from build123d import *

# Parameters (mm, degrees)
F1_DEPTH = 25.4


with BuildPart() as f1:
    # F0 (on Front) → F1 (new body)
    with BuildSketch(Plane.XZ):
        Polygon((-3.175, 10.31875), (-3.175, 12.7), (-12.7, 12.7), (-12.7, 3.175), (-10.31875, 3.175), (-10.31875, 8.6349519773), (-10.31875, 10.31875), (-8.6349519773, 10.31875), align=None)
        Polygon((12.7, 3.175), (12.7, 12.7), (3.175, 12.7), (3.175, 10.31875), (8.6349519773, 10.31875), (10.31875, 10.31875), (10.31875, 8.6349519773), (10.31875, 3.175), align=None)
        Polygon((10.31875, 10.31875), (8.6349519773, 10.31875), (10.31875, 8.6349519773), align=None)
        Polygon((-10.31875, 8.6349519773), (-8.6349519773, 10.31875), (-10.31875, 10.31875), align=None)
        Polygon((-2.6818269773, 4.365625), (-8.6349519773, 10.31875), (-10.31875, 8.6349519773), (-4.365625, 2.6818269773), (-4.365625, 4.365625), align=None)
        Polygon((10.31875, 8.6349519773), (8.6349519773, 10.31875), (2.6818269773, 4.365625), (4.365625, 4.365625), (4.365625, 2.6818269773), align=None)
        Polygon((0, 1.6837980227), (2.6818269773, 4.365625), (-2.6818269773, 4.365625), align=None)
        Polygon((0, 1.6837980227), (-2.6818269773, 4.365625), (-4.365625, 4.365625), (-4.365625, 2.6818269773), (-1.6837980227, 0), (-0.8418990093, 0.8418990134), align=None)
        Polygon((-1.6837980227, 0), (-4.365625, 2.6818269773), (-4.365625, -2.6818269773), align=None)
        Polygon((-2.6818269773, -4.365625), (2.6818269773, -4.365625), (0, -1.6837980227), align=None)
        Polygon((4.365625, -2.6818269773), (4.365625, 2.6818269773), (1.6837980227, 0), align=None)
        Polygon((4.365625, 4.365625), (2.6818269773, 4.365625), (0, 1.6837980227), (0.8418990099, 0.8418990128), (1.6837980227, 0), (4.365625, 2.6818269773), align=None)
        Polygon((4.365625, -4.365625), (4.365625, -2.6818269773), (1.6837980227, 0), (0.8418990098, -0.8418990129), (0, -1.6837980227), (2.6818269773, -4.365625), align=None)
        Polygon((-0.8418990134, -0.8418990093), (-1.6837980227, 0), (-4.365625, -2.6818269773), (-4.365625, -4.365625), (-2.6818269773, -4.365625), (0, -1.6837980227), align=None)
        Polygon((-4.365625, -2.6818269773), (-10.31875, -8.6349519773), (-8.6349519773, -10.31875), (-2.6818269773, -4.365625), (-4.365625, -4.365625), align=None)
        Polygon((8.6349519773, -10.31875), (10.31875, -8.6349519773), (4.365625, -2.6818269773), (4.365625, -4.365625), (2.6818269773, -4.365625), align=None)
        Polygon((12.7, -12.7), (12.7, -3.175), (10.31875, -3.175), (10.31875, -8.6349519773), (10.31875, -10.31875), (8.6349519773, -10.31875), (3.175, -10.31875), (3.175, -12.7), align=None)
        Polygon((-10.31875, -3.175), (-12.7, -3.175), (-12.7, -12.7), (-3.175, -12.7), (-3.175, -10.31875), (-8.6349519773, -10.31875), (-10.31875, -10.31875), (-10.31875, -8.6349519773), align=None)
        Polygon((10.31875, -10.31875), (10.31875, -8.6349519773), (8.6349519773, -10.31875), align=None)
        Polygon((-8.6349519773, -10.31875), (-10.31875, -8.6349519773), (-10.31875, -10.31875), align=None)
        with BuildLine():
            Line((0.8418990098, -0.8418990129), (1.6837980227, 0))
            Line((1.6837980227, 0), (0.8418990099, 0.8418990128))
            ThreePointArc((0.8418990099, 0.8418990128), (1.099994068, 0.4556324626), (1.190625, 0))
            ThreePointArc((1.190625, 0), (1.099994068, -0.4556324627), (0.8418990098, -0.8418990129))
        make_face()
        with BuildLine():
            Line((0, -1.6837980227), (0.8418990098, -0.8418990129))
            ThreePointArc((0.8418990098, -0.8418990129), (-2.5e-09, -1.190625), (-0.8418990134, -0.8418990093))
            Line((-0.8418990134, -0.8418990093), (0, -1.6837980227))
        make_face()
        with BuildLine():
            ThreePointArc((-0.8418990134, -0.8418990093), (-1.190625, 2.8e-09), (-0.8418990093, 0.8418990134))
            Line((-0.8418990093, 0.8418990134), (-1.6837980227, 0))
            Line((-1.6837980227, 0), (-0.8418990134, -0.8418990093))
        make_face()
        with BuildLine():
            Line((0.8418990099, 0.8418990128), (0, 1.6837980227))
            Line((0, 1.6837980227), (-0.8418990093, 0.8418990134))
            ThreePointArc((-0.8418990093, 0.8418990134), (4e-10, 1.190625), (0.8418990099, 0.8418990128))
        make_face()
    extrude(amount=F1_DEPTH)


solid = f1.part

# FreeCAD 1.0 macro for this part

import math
import FreeCAD as App
import Part
import Sketcher
Q = App.Units.Quantity

doc = App.newDocument("Part")
body = doc.addObject("PartDesign::Body", "Body")

# Sketch on XZ plane
sketch1 = body.newObject("Sketcher::SketchObject", "Sketch")
sketch1.AttachmentSupport = (doc.getObject("XZ_Plane"), [""])
sketch1.MapMode = "FlatFace"
sketch1.addGeometry(Part.LineSegment(App.Vector(-3.2, 10.3, 0), App.Vector(-3.2, 12.7, 0)), False)
sketch1.addGeometry(Part.LineSegment(App.Vector(-3.2, 12.7, 0), App.Vector(-12.7, 12.7, 0)), False)
sketch1.addGeometry(Part.LineSegment(App.Vector(-12.7, 12.7, 0), App.Vector(-12.7, 3.2, 0)), False)
sketch1.addGeometry(Part.LineSegment(App.Vector(-12.7, 3.2, 0), App.Vector(-10.3, 3.2, 0)), False)
sketch1.addGeometry(Part.LineSegment(App.Vector(-10.3, 3.2, 0), App.Vector(-10.3, 8.6, 0)), False)
sketch1.addGeometry(Part.LineSegment(App.Vector(-10.3, 8.6, 0), App.Vector(-4.4, 2.7, 0)), False)
sketch1.addGeometry(Part.LineSegment(App.Vector(-4.4, 2.7, 0), App.Vector(-4.4, -2.7, 0)), False)
sketch1.addGeometry(Part.LineSegment(App.Vector(-4.4, -2.7, 0), App.Vector(-10.3, -8.6, 0)), False)
sketch1.addGeometry(Part.LineSegment(App.Vector(-10.3, -8.6, 0), App.Vector(-10.3, -3.2, 0)), False)
sketch1.addGeometry(Part.LineSegment(App.Vector(-10.3, -3.2, 0), App.Vector(-12.7, -3.2, 0)), False)
sketch1.addGeometry(Part.LineSegment(App.Vector(-12.7, -3.2, 0), App.Vector(-12.7, -12.7, 0)), False)
sketch1.addGeometry(Part.LineSegment(App.Vector(-12.7, -12.7, 0), App.Vector(-3.2, -12.7, 0)), False)
sketch1.addGeometry(Part.LineSegment(App.Vector(-3.2, -12.7, 0), App.Vector(-3.2, -10.3, 0)), False)
sketch1.addGeometry(Part.LineSegment(App.Vector(-3.2, -10.3, 0), App.Vector(-8.6, -10.3, 0)), False)
sketch1.addGeometry(Part.LineSegment(App.Vector(-8.6, -10.3, 0), App.Vector(-2.7, -4.4, 0)), False)
sketch1.addGeometry(Part.LineSegment(App.Vector(-2.7, -4.4, 0), App.Vector(2.7, -4.4, 0)), False)
sketch1.addGeometry(Part.LineSegment(App.Vector(2.7, -4.4, 0), App.Vector(8.6, -10.3, 0)), False)
sketch1.addGeometry(Part.LineSegment(App.Vector(8.6, -10.3, 0), App.Vector(3.2, -10.3, 0)), False)
sketch1.addGeometry(Part.LineSegment(App.Vector(3.2, -10.3, 0), App.Vector(3.2, -12.7, 0)), False)
sketch1.addGeometry(Part.LineSegment(App.Vector(3.2, -12.7, 0), App.Vector(12.7, -12.7, 0)), False)
sketch1.addGeometry(Part.LineSegment(App.Vector(12.7, -12.7, 0), App.Vector(12.7, -3.2, 0)), False)
sketch1.addGeometry(Part.LineSegment(App.Vector(12.7, -3.2, 0), App.Vector(10.3, -3.2, 0)), False)
sketch1.addGeometry(Part.LineSegment(App.Vector(10.3, -3.2, 0), App.Vector(10.3, -8.6, 0)), False)
sketch1.addGeometry(Part.LineSegment(App.Vector(10.3, -8.6, 0), App.Vector(4.4, -2.7, 0)), False)
sketch1.addGeometry(Part.LineSegment(App.Vector(4.4, -2.7, 0), App.Vector(4.4, 2.7, 0)), False)
sketch1.addGeometry(Part.LineSegment(App.Vector(4.4, 2.7, 0), App.Vector(10.3, 8.6, 0)), False)
sketch1.addGeometry(Part.LineSegment(App.Vector(10.3, 8.6, 0), App.Vector(10.3, 3.2, 0)), False)
sketch1.addGeometry(Part.LineSegment(App.Vector(10.3, 3.2, 0), App.Vector(12.7, 3.2, 0)), False)
sketch1.addGeometry(Part.LineSegment(App.Vector(12.7, 3.2, 0), App.Vector(12.7, 12.7, 0)), False)
sketch1.addGeometry(Part.LineSegment(App.Vector(12.7, 12.7, 0), App.Vector(3.2, 12.7, 0)), False)
sketch1.addGeometry(Part.LineSegment(App.Vector(3.2, 12.7, 0), App.Vector(3.2, 10.3, 0)), False)
sketch1.addGeometry(Part.LineSegment(App.Vector(3.2, 10.3, 0), App.Vector(8.6, 10.3, 0)), False)
sketch1.addGeometry(Part.LineSegment(App.Vector(8.6, 10.3, 0), App.Vector(2.7, 4.4, 0)), False)
sketch1.addGeometry(Part.LineSegment(App.Vector(2.7, 4.4, 0), App.Vector(-2.7, 4.4, 0)), False)
sketch1.addGeometry(Part.LineSegment(App.Vector(-2.7, 4.4, 0), App.Vector(-8.6, 10.3, 0)), False)
sketch1.addGeometry(Part.LineSegment(App.Vector(-8.6, 10.3, 0), App.Vector(-3.2, 10.3, 0)), False)
sketch1.addGeometry(Part.ArcOfCircle(Part.Circle(App.Vector(0, 0, 0), App.Vector(0, 0, 1), 1.2), math.radians(0), math.radians(45)), False)
sketch1.addGeometry(Part.ArcOfCircle(Part.Circle(App.Vector(0, 0, 0), App.Vector(0, 0, 1), 1.2), math.radians(-45), math.radians(0)), False)
sketch1.addGeometry(Part.ArcOfCircle(Part.Circle(App.Vector(0, 0, 0), App.Vector(0, 0, 1), 1.2), math.radians(-135), math.radians(-45)), False)
sketch1.addGeometry(Part.ArcOfCircle(Part.Circle(App.Vector(0, 0, 0), App.Vector(0, 0, 1), 1.2), math.radians(135), math.radians(225)), False)
sketch1.addGeometry(Part.ArcOfCircle(Part.Circle(App.Vector(0, 0, 0), App.Vector(0, 0, 1), 1.2), math.radians(45), math.radians(135)), False)
sketch1.addConstraint(Sketcher.Constraint("Coincident", 0, 2, 1, 1))
sketch1.addConstraint(Sketcher.Constraint("Coincident", 1, 2, 2, 1))
sketch1.addConstraint(Sketcher.Constraint("Coincident", 2, 2, 3, 1))
sketch1.addConstraint(Sketcher.Constraint("Coincident", 3, 2, 4, 1))
sketch1.addConstraint(Sketcher.Constraint("Coincident", 4, 2, 5, 1))
sketch1.addConstraint(Sketcher.Constraint("Coincident", 5, 2, 6, 1))
sketch1.addConstraint(Sketcher.Constraint("Coincident", 6, 2, 7, 1))
sketch1.addConstraint(Sketcher.Constraint("Coincident", 7, 2, 8, 1))
sketch1.addConstraint(Sketcher.Constraint("Coincident", 8, 2, 9, 1))
sketch1.addConstraint(Sketcher.Constraint("Coincident", 9, 2, 10, 1))
sketch1.addConstraint(Sketcher.Constraint("Coincident", 10, 2, 11, 1))
sketch1.addConstraint(Sketcher.Constraint("Coincident", 11, 2, 12, 1))
sketch1.addConstraint(Sketcher.Constraint("Coincident", 12, 2, 13, 1))
sketch1.addConstraint(Sketcher.Constraint("Coincident", 13, 2, 14, 1))
sketch1.addConstraint(Sketcher.Constraint("Coincident", 14, 2, 15, 1))
sketch1.addConstraint(Sketcher.Constraint("Coincident", 15, 2, 16, 1))
sketch1.addConstraint(Sketcher.Constraint("Coincident", 16, 2, 17, 1))
sketch1.addConstraint(Sketcher.Constraint("Coincident", 17, 2, 18, 1))
sketch1.addConstraint(Sketcher.Constraint("Coincident", 18, 2, 19, 1))
sketch1.addConstraint(Sketcher.Constraint("Coincident", 19, 2, 20, 1))
sketch1.addConstraint(Sketcher.Constraint("Coincident", 20, 2, 21, 1))
sketch1.addConstraint(Sketcher.Constraint("Coincident", 21, 2, 22, 1))
sketch1.addConstraint(Sketcher.Constraint("Coincident", 22, 2, 23, 1))
sketch1.addConstraint(Sketcher.Constraint("Coincident", 23, 2, 24, 1))
sketch1.addConstraint(Sketcher.Constraint("Coincident", 24, 2, 25, 1))
sketch1.addConstraint(Sketcher.Constraint("Coincident", 25, 2, 26, 1))
sketch1.addConstraint(Sketcher.Constraint("Coincident", 26, 2, 27, 1))
sketch1.addConstraint(Sketcher.Constraint("Coincident", 27, 2, 28, 1))
sketch1.addConstraint(Sketcher.Constraint("Coincident", 28, 2, 29, 1))
sketch1.addConstraint(Sketcher.Constraint("Coincident", 29, 2, 30, 1))
sketch1.addConstraint(Sketcher.Constraint("Coincident", 30, 2, 31, 1))
sketch1.addConstraint(Sketcher.Constraint("Coincident", 31, 2, 32, 1))
sketch1.addConstraint(Sketcher.Constraint("Coincident", 32, 2, 33, 1))
sketch1.addConstraint(Sketcher.Constraint("Coincident", 33, 2, 34, 1))
sketch1.addConstraint(Sketcher.Constraint("Coincident", 34, 2, 35, 1))
sketch1.addConstraint(Sketcher.Constraint("Coincident", 35, 2, 0, 1))
sketch1.addConstraint(Sketcher.Constraint("Tangent", 36, 1, 37, 2))
sketch1.addConstraint(Sketcher.Constraint("Tangent", 37, 1, 38, 2))
sketch1.addConstraint(Sketcher.Constraint("Tangent", 38, 1, 39, 2))
sketch1.addConstraint(Sketcher.Constraint("Tangent", 39, 1, 40, 2))
sketch1.addConstraint(Sketcher.Constraint("Tangent", 40, 1, 36, 2))
sketch1.addConstraint(Sketcher.Constraint("Vertical", 0))
sketch1.addConstraint(Sketcher.Constraint("Horizontal", 1))
sketch1.addConstraint(Sketcher.Constraint("Vertical", 2))
sketch1.addConstraint(Sketcher.Constraint("Horizontal", 3))
sketch1.addConstraint(Sketcher.Constraint("Vertical", 4))
sketch1.addConstraint(Sketcher.Constraint("Vertical", 6))
sketch1.addConstraint(Sketcher.Constraint("Vertical", 8))
sketch1.addConstraint(Sketcher.Constraint("Horizontal", 9))
sketch1.addConstraint(Sketcher.Constraint("Vertical", 10))
sketch1.addConstraint(Sketcher.Constraint("Horizontal", 11))
sketch1.addConstraint(Sketcher.Constraint("Vertical", 12))
sketch1.addConstraint(Sketcher.Constraint("Horizontal", 13))
sketch1.addConstraint(Sketcher.Constraint("Horizontal", 15))
sketch1.addConstraint(Sketcher.Constraint("Horizontal", 17))
sketch1.addConstraint(Sketcher.Constraint("Vertical", 18))
sketch1.addConstraint(Sketcher.Constraint("Horizontal", 19))
sketch1.addConstraint(Sketcher.Constraint("Vertical", 20))
sketch1.addConstraint(Sketcher.Constraint("Horizontal", 21))
sketch1.addConstraint(Sketcher.Constraint("Vertical", 22))
sketch1.addConstraint(Sketcher.Constraint("Vertical", 24))
sketch1.addConstraint(Sketcher.Constraint("Vertical", 26))
sketch1.addConstraint(Sketcher.Constraint("Horizontal", 27))
sketch1.addConstraint(Sketcher.Constraint("Vertical", 28))
sketch1.addConstraint(Sketcher.Constraint("Horizontal", 29))
sketch1.addConstraint(Sketcher.Constraint("Vertical", 30))
sketch1.addConstraint(Sketcher.Constraint("Horizontal", 31))
sketch1.addConstraint(Sketcher.Constraint("Horizontal", 33))
sketch1.addConstraint(Sketcher.Constraint("Horizontal", 35))
sketch1.addConstraint(Sketcher.Constraint("Coincident", 36, 3, -1, 1))
sketch1.addConstraint(Sketcher.Constraint("Coincident", 38, 3, -1, 1))
sketch1.addConstraint(Sketcher.Constraint("Symmetric", 0, 2, 18, 2, -1, 1))
sketch1.addConstraint(Sketcher.Constraint("Symmetric", 2, 2, 20, 2, -1, 1))
sketch1.addConstraint(Sketcher.Constraint("Symmetric", 4, 2, 22, 2, -1, 1))
sketch1.addConstraint(Sketcher.Constraint("Symmetric", 5, 2, 23, 2, -1, 1))
sketch1.addConstraint(Sketcher.Constraint("Symmetric", 7, 2, 25, 2, -1, 1))
sketch1.addConstraint(Sketcher.Constraint("Symmetric", 9, 2, 27, 2, -1, 1))
sketch1.addConstraint(Sketcher.Constraint("Symmetric", 11, 2, 29, 2, -1, 1))
sketch1.addConstraint(Sketcher.Constraint("Symmetric", 13, 2, 31, 2, -1, 1))
sketch1.addConstraint(Sketcher.Constraint("Symmetric", 14, 2, 32, 2, -1, 1))
sketch1.addConstraint(Sketcher.Constraint("Symmetric", 16, 2, 34, 2, -1, 1))
sketch1.addConstraint(Sketcher.Constraint("Symmetric", 13, 2, 16, 2, -2))
sketch1.addConstraint(Sketcher.Constraint("Symmetric", 11, 2, 18, 2, -2))
sketch1.addConstraint(Sketcher.Constraint("Symmetric", 9, 2, 20, 2, -2))
sketch1.addConstraint(Sketcher.Constraint("Symmetric", 7, 2, 22, 2, -2))
sketch1.addConstraint(Sketcher.Constraint("PointOnObject", 36, 1, -1))
sketch1.addConstraint(Sketcher.Constraint("Perpendicular", 5, 7))
sketch1.addConstraint(Sketcher.Constraint("Parallel", 7, 14))
sketch1.addConstraint(Sketcher.Constraint("Perpendicular", 14, 16))
sketch1.addConstraint(Sketcher.Constraint("Perpendicular", 23, 25))
sketch1.addConstraint(Sketcher.Constraint("Perpendicular", 32, 34))
sketch1.addConstraint(Sketcher.Constraint("Horizontal", 6, 2, 23, 2))
sketch1.addConstraint(Sketcher.Constraint("Horizontal", 37, 1, 38, 1))
sketch1.addConstraint(Sketcher.Constraint("Horizontal", 39, 1, 40, 1))
sketch1.addConstraint(Sketcher.Constraint("Vertical", 38, 1, 39, 1))
sketch1.addConstraint(Sketcher.Constraint("Equal", 27, 0))
sketch1.addConstraint(Sketcher.Constraint("Equal", 29, 2))
sketch1.addConstraint(Sketcher.Constraint("Equal", 35, 4))
sketch1.addConstraint(Sketcher.Constraint("Equal", 33, 6))
sketch1.addConstraint(Sketcher.Constraint("Equal", 7, 14))
sketch1.addConstraint(Sketcher.Constraint("Radius", 36, Q("0.046875 in")))
sketch1.addConstraint(Sketcher.Constraint("DistanceY", -1, 1, 0, 2, Q("0.5 in")))
sketch1.addConstraint(Sketcher.Constraint("DistanceX", 1, 2, 1, 1, Q("0.375 in")))
sketch1.addConstraint(Sketcher.Constraint("DistanceX", 3, 1, 3, 2, Q("0.09375 in")))
sketch1.addConstraint(Sketcher.Constraint("DistanceX", 5, 2, -1, 1, Q("0.171875 in")))
sketch1.addConstraint(Sketcher.Constraint("DistanceX", 13, 2, 13, 1, 5.459952))
sketch1.addConstraint(Sketcher.Constraint("DistanceX", -1, 1, 37, 1, 0.841899))
pad1 = body.newObject("PartDesign::Pad", "Pad")
pad1.Profile = sketch1
pad1.Length = Q("1 in")

doc.recompute()
